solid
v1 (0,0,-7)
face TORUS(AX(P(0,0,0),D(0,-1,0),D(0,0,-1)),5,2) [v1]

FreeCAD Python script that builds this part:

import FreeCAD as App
import Part
import Sketcher
Q = App.Units.Quantity

doc = App.newDocument("Part")
body = doc.addObject("PartDesign::Body", "Body")

# Sketch on XY plane
sketch1 = body.newObject("Sketcher::SketchObject", "Sketch")
sketch1.AttachmentSupport = (doc.getObject("XY_Plane"), [""])
sketch1.MapMode = "FlatFace"
sketch1.addGeometry(Part.Circle(App.Vector(5, 0, 0), App.Vector(0, 0, 1), 2), False)
sketch1.addConstraint([
    Sketcher.Constraint("PointOnObject", 0, 3, -1),
    Sketcher.Constraint("Diameter", 0, Q("4 mm")),
    Sketcher.Constraint("DistanceX", -1, 1, 0, 3, Q("5 mm")),
])
revolution = body.newObject("PartDesign::Revolution", "Revolution")
revolution.Profile = sketch1
revolution.ReferenceAxis = (sketch1, ["V_Axis"])
revolution.Angle = 360

doc.recompute()
